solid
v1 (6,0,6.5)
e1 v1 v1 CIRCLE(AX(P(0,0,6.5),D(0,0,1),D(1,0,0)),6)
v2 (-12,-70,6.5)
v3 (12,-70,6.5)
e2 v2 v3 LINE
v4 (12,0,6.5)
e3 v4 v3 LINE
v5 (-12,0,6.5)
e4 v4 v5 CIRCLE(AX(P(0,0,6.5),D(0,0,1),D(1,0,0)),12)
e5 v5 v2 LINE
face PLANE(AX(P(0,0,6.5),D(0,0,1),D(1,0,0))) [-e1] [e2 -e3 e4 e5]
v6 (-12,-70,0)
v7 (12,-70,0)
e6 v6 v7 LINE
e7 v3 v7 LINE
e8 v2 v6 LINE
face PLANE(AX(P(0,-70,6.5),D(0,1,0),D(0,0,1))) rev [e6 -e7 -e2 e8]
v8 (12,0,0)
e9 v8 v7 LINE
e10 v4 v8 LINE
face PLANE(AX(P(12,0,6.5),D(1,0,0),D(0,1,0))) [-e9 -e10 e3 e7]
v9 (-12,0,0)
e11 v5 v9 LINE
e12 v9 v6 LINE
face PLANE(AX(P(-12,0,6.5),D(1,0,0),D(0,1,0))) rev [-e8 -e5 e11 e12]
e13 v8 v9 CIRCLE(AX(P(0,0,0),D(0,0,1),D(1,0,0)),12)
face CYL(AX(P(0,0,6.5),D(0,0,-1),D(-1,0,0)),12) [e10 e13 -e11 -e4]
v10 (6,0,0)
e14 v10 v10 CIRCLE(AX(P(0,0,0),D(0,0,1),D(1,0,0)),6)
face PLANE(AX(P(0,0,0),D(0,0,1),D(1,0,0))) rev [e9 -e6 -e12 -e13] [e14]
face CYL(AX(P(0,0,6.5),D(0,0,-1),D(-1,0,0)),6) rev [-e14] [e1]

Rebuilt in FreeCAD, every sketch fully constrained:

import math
import FreeCAD as App
import Part
import Sketcher
Q = App.Units.Quantity

doc = App.newDocument("Part")
body = doc.addObject("PartDesign::Body", "Body")

sketch1 = body.newObject("Sketcher::SketchObject", "Sketch")
sketch1.AttachmentSupport = (doc.getObject("XY_Plane"), [""])
sketch1.MapMode = "FlatFace"
sketch1.addGeometry([
    Part.LineSegment(App.Vector(12, -70, 0), App.Vector(12, 0, 0)),
    Part.ArcOfCircle(Part.Circle(App.Vector(0, 0, 0), App.Vector(0, 0, 1), 12), math.radians(0), math.radians(180)),
    Part.LineSegment(App.Vector(-12, 0, 0), App.Vector(-12, -70, 0)),
    Part.LineSegment(App.Vector(-12, -70, 0), App.Vector(12, -70, 0)),
    Part.Circle(App.Vector(0, 0, 0), App.Vector(0, 0, 1), 6),
], False)
sketch1.addConstraint([
    Sketcher.Constraint("Tangent", 0, 2, 1, 1),
    Sketcher.Constraint("Tangent", 1, 2, 2, 1),
    Sketcher.Constraint("Coincident", 2, 2, 3, 1),
    Sketcher.Constraint("Coincident", 3, 2, 0, 1),
    Sketcher.Constraint("Vertical", 0),
    Sketcher.Constraint("Vertical", 2),
    Sketcher.Constraint("Horizontal", 3),
    Sketcher.Constraint("Coincident", 1, 3, -1, 1),
    Sketcher.Constraint("Coincident", 4, 3, -1, 1),
    Sketcher.Constraint("Diameter", 4, Q("12 mm")),
    Sketcher.Constraint("Radius", 1, Q("12 mm")),
    Sketcher.Constraint("DistanceY", 0, 1, 0, 2, Q("70 mm")),
])
pad1 = body.newObject("PartDesign::Pad", "Pad")
pad1.Profile = sketch1
pad1.Length = 6.5

doc.recompute()
